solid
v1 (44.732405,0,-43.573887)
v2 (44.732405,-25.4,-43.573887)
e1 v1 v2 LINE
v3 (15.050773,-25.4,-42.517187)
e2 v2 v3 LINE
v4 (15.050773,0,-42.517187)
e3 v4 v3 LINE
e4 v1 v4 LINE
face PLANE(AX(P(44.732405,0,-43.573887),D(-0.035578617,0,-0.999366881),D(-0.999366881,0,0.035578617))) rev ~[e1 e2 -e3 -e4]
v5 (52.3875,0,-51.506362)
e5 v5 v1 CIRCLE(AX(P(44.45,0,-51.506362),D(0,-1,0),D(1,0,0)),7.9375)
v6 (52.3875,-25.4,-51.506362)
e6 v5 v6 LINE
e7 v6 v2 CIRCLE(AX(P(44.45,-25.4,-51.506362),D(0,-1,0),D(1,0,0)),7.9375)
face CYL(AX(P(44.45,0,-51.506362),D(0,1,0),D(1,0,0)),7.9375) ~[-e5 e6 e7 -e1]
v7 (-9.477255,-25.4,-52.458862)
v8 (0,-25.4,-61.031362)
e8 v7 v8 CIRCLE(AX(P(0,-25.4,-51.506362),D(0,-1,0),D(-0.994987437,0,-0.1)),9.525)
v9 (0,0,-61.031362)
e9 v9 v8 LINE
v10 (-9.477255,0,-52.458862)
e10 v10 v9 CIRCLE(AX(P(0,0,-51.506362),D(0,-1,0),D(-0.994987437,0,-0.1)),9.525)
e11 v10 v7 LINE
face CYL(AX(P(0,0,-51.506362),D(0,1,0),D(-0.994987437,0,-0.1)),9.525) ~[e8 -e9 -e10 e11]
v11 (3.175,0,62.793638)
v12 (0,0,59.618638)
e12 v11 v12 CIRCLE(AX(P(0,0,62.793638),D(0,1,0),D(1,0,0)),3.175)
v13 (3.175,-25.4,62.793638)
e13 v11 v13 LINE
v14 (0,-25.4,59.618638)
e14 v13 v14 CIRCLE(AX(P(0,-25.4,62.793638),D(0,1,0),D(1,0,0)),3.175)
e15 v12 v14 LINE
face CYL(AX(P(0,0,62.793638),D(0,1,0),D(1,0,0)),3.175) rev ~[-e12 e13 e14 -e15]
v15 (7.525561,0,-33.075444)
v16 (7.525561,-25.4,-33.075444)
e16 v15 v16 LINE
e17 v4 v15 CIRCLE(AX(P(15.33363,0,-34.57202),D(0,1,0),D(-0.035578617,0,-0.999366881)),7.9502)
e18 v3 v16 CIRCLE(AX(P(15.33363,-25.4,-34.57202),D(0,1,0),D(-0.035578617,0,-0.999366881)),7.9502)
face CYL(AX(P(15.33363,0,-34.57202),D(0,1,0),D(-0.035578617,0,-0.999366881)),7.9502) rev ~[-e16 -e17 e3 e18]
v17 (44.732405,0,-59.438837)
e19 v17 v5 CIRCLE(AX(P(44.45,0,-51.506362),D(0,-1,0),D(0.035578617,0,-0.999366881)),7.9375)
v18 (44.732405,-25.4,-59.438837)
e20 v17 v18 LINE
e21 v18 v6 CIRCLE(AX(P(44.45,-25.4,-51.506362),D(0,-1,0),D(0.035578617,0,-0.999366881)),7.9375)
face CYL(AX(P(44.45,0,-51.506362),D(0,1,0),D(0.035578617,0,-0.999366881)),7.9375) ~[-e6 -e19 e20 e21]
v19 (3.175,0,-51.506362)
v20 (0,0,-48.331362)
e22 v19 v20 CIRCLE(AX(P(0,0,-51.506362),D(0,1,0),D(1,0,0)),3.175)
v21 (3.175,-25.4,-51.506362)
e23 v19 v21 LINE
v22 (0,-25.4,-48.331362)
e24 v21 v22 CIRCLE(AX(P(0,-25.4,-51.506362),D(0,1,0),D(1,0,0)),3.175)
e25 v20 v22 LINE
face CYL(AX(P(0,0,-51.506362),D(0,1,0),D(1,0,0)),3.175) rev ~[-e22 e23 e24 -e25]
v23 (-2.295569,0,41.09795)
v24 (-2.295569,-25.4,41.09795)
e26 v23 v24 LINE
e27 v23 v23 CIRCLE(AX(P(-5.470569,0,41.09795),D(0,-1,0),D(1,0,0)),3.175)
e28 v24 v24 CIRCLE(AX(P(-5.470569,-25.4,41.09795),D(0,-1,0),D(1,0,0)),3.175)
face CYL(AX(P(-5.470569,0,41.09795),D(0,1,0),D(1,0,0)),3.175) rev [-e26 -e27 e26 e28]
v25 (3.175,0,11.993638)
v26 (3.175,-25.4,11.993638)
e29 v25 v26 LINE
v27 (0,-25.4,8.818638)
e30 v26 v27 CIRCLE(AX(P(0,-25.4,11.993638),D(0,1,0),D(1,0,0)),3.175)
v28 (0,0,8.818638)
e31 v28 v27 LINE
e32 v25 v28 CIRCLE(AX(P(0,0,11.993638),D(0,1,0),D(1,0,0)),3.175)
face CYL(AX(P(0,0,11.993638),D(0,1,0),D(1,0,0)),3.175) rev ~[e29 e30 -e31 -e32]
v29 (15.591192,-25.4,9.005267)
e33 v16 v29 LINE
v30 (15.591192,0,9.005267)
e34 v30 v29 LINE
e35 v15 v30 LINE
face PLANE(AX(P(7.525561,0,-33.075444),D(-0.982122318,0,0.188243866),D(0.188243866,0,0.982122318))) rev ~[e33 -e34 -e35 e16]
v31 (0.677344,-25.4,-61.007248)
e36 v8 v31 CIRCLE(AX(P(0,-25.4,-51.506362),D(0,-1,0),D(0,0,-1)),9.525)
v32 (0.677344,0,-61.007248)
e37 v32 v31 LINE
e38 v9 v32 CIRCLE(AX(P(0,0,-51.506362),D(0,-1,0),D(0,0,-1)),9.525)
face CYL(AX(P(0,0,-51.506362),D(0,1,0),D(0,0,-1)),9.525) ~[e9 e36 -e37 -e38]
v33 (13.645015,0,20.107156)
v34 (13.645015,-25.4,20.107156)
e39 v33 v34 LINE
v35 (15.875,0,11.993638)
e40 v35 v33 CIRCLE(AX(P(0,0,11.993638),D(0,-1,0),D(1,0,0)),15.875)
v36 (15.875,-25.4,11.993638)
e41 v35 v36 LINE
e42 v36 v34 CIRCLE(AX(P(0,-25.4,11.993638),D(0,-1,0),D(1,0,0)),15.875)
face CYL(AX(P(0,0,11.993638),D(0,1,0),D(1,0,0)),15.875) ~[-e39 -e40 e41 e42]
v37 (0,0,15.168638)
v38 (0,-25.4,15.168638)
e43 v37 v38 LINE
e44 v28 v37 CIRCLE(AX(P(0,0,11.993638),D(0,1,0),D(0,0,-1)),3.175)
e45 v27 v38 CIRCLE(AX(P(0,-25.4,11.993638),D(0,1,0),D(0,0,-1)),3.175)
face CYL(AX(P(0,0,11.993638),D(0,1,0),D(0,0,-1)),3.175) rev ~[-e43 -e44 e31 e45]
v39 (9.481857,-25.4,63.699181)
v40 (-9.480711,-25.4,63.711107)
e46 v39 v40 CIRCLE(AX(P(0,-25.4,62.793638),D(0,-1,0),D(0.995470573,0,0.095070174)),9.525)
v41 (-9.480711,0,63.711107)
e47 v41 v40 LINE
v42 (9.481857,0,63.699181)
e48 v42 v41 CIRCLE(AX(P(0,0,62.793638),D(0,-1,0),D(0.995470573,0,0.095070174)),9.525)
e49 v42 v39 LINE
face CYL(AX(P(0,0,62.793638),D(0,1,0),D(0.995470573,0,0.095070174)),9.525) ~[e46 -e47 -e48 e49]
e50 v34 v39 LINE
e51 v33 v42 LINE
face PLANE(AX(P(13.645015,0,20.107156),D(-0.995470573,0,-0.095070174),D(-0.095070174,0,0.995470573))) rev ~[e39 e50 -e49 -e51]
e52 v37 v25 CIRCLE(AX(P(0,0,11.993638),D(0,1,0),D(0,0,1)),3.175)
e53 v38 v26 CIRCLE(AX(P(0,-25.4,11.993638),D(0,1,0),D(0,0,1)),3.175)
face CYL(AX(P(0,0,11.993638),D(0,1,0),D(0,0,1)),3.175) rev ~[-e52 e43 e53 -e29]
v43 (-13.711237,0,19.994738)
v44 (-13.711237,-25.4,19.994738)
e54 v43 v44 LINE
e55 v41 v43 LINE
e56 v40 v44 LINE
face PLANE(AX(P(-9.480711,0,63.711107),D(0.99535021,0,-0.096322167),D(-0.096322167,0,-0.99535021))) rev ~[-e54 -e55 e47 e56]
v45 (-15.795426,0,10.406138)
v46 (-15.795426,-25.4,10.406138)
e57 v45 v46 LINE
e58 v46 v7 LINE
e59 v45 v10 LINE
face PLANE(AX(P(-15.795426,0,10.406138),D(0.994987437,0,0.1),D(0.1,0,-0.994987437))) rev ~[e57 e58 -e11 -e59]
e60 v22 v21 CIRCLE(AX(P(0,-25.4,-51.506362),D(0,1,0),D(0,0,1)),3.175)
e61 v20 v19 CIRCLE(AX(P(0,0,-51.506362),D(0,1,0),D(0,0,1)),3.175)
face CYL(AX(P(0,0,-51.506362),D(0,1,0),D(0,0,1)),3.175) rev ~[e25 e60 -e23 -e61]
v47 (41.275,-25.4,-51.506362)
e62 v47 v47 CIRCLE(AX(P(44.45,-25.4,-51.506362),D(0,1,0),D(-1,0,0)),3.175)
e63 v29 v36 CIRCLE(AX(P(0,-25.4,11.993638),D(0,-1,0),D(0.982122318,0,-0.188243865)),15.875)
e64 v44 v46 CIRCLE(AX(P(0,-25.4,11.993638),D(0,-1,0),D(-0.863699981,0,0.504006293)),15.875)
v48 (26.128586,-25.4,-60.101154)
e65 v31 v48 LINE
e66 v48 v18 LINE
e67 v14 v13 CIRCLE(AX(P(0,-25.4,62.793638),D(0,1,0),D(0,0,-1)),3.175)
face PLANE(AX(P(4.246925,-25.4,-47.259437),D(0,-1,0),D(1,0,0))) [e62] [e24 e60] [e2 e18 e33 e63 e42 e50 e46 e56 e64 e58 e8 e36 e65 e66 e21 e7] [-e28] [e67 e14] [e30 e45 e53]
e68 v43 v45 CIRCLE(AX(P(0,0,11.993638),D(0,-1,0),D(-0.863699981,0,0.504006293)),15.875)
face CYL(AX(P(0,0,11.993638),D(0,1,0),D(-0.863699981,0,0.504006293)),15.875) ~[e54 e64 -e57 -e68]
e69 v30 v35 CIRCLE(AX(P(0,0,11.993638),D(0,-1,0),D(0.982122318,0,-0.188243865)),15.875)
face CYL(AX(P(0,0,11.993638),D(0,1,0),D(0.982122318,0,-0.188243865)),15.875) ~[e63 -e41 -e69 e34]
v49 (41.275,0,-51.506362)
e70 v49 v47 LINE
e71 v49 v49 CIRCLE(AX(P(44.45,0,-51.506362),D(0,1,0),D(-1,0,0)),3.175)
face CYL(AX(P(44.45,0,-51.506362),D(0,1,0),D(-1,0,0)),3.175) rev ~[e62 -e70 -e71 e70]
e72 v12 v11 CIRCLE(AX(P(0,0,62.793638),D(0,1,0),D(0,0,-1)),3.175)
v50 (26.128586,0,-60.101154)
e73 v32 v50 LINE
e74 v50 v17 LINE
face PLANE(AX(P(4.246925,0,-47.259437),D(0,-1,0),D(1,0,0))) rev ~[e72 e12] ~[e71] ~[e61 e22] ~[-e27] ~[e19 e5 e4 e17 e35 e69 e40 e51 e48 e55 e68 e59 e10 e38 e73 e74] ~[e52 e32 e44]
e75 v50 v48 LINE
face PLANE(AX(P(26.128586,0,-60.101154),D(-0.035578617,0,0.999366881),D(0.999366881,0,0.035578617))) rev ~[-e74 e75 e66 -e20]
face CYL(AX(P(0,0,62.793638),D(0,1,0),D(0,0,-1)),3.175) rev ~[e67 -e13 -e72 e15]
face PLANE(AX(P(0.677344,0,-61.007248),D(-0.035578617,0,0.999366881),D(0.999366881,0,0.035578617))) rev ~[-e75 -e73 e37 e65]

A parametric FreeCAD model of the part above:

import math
import FreeCAD as App
import Part
import Sketcher
from FreeCAD import Vector
Q = App.Units.Quantity

doc = App.newDocument("Part")
body = doc.addObject("PartDesign::Body", "Body")

# Sketch on XZ plane
sketch1 = body.newObject("Sketcher::SketchObject", "Sketch")
sketch1.AttachmentSupport = (doc.getObject("XZ_Plane"), [""])
sketch1.MapMode = "FlatFace"
sketch1.addGeometry([
    Part.ArcOfCircle(Part.Circle(Vector(0, -51.5, 0), Vector(0, 0, 1), 9.5), math.radians(-90), math.radians(-85.92)),  # 0
    Part.LineSegment(Vector(0.7, -61, 0), Vector(26.1, -60.1, 0)),  # 1
    Part.LineSegment(Vector(26.1, -60.1, 0), Vector(44.7, -59.4, 0)),  # 2
    Part.ArcOfCircle(Part.Circle(Vector(44.5, -51.5, 0), Vector(0, 0, 1), 7.9), math.radians(-88), math.radians(0)),  # 3
    Part.ArcOfCircle(Part.Circle(Vector(44.5, -51.5, 0), Vector(0, 0, 1), 7.9), math.radians(0), math.radians(88)),  # 4
    Part.LineSegment(Vector(44.7, -43.6, 0), Vector(15.1, -42.5, 0)),  # 5
    Part.ArcOfCircle(Part.Circle(Vector(15.3, -34.6, 0), Vector(0, 0, 1), 8), math.radians(169), math.radians(268)),  # 6
    Part.LineSegment(Vector(7.5, -33.1, 0), Vector(15.6, 9, 0)),  # 7
    Part.ArcOfCircle(Part.Circle(Vector(0, 12, 0), Vector(0, 0, 1), 15.9), math.radians(-10.85), math.radians(0)),  # 8
    Part.ArcOfCircle(Part.Circle(Vector(0, 12, 0), Vector(0, 0, 1), 15.9), math.radians(0), math.radians(31)),  # 9
    Part.LineSegment(Vector(13.6, 20.1, 0), Vector(9.5, 63.7, 0)),  # 10
    Part.ArcOfCircle(Part.Circle(Vector(0, 62.8, 0), Vector(0, 0, 1), 9.5), math.radians(5), math.radians(174)),  # 11
    Part.LineSegment(Vector(-9.5, 63.7, 0), Vector(-13.7, 20, 0)),  # 12
    Part.ArcOfCircle(Part.Circle(Vector(0, 12, 0), Vector(0, 0, 1), 15.9), math.radians(150), math.radians(186)),  # 13
    Part.LineSegment(Vector(-15.8, 10.4, 0), Vector(-9.5, -52.5, 0)),  # 14
    Part.ArcOfCircle(Part.Circle(Vector(0, -51.5, 0), Vector(0, 0, 1), 9.5), math.radians(-174), math.radians(-90)),  # 15
    Part.ArcOfCircle(Part.Circle(Vector(0, -51.5, 0), Vector(0, 0, 1), 9.5), math.radians(0), math.radians(90)),  # 16
    Part.LineSegment(Vector(9.5, -51.5, 0), Vector(3.2, -51.5, 0)),  # 17
    Part.ArcOfCircle(Part.Circle(Vector(0, -51.5, 0), Vector(0, 0, 1), 3.2), math.radians(90), math.radians(360)),  # 18
    Part.LineSegment(Vector(0, -48.3, 0), Vector(0, -42, 0)),  # 19
    Part.Circle(Vector(44.5, -51.5, 0), Vector(0, 0, 1), 3.2),  # 20
    Part.ArcOfCircle(Part.Circle(Vector(0, 12, 0), Vector(0, 0, 1), 3.2), math.radians(0), math.radians(90)),  # 21
    Part.ArcOfCircle(Part.Circle(Vector(0, 12, 0), Vector(0, 0, 1), 3.2), math.radians(-90), math.radians(0)),  # 22
    Part.ArcOfCircle(Part.Circle(Vector(0, 12, 0), Vector(0, 0, 1), 3.2), math.radians(90), math.radians(270)),  # 23
    Part.Circle(Vector(-5.5, 41.1, 0), Vector(0, 0, 1), 3.2),  # 24
    Part.ArcOfCircle(Part.Circle(Vector(0, 62.8, 0), Vector(0, 0, 1), 3.2), math.radians(0), math.radians(270)),  # 25
    Part.ArcOfCircle(Part.Circle(Vector(0, 62.8, 0), Vector(0, 0, 1), 3.2), math.radians(-90), math.radians(0)),  # 26
], False)
sketch1.addConstraint([
    Sketcher.Constraint("Coincident", 0, 2, 1, 1),
    Sketcher.Constraint("Coincident", 1, 2, 2, 1),
    Sketcher.Constraint("Tangent", 2, 2, 3, 1),
    Sketcher.Constraint("Tangent", 3, 2, 4, 1),
    Sketcher.Constraint("Tangent", 4, 2, 5, 1),
    Sketcher.Constraint("Tangent", 5, 2, 6, 2),
    Sketcher.Constraint("Tangent", 6, 1, 7, 1),
    Sketcher.Constraint("Tangent", 7, 2, 8, 1),
    Sketcher.Constraint("Tangent", 8, 2, 9, 1),
    Sketcher.Constraint("Coincident", 9, 2, 10, 1),
    Sketcher.Constraint("Tangent", 10, 2, 11, 1),
    Sketcher.Constraint("Tangent", 11, 2, 12, 1),
    Sketcher.Constraint("Coincident", 12, 2, 13, 1),
    Sketcher.Constraint("Tangent", 13, 2, 14, 1),
    Sketcher.Constraint("Tangent", 14, 2, 15, 1),
    Sketcher.Constraint("Tangent", 15, 2, 0, 1),
    Sketcher.Constraint("Coincident", 16, 1, 17, 1),
    Sketcher.Constraint("Coincident", 17, 2, 18, 2),
    Sketcher.Constraint("Coincident", 18, 1, 19, 1),
    Sketcher.Constraint("Coincident", 19, 2, 16, 2),
    Sketcher.Constraint("Tangent", 21, 1, 22, 2),
    Sketcher.Constraint("Tangent", 22, 1, 23, 2),
    Sketcher.Constraint("Tangent", 23, 1, 21, 2),
    Sketcher.Constraint("Tangent", 25, 1, 26, 2),
    Sketcher.Constraint("Coincident", 26, 1, 25, 2),
    Sketcher.Constraint("Horizontal", 17),
    Sketcher.Constraint("Vertical", 19),
    Sketcher.Constraint("Coincident", 13, 3, 8, 3),
    Sketcher.Constraint("Coincident", 16, 3, 0, 3),
    Sketcher.Constraint("Coincident", 18, 3, 0, 3),
    Sketcher.Constraint("Coincident", 20, 3, 3, 3),
    Sketcher.Constraint("Coincident", 21, 3, 8, 3),
    Sketcher.Constraint("Coincident", 25, 3, 11, 3),
    Sketcher.Constraint("Equal", 3, 4),
    Sketcher.Constraint("Equal", 8, 9),
    Sketcher.Constraint("Equal", 0, 11),
    Sketcher.Constraint("Equal", 9, 13),
    Sketcher.Constraint("Equal", 11, 15),
    Sketcher.Constraint("Equal", 15, 16),
    Sketcher.Constraint("Equal", 18, 20),
    Sketcher.Constraint("Equal", 20, 21),
    Sketcher.Constraint("Equal", 23, 24),
    Sketcher.Constraint("Equal", 24, 25),
    Sketcher.Constraint("PointOnObject", 0, 3, -2),
    Sketcher.Constraint("PointOnObject", 8, 3, -2),
    Sketcher.Constraint("PointOnObject", 11, 3, -2),
    Sketcher.Constraint("PointOnObject", 15, 2, -2),
    Sketcher.Constraint("PointOnObject", 18, 1, -2),
    Sketcher.Constraint("PointOnObject", 22, 1, -2),
    Sketcher.Constraint("PointOnObject", 23, 1, -2),
    Sketcher.Constraint("PointOnObject", 26, 1, -2),
    Sketcher.Constraint("Parallel", 1, 2),
    Sketcher.Constraint("Horizontal", 0, 3, 3, 3),
    Sketcher.Constraint("Horizontal", 20, 3, 3, 2),
    Sketcher.Constraint("Horizontal", 23, 3, 8, 2),
    Sketcher.Constraint("Horizontal", 3, 2, 16, 1),
    Sketcher.Constraint("Horizontal", 8, 2, 21, 1),
    Sketcher.Constraint("Horizontal", 26, 3, 25, 1),
    Sketcher.Constraint("Vertical", 2, 2, 4, 2),
    Sketcher.Constraint("Diameter", 20, Q("0.25 in")),
    Sketcher.Constraint("Radius", 0, Q("0.375 in")),
    Sketcher.Constraint("Radius", 3, Q("0.3125 in")),
    Sketcher.Constraint("Radius", 6, Q("0.313 in")),
    Sketcher.Constraint("Radius", 8, Q("0.625 in")),
    Sketcher.Constraint("DistanceY", 8, 3, 11, 3, Q("2 in")),
    Sketcher.Constraint("DistanceY", 0, 3, 8, 3, Q("2.5 in")),
    Sketcher.Constraint("DistanceX", -1, 1, 3, 3, Q("1.75 in")),
    Sketcher.Constraint("DistanceY", 8, 3, 12, 2, 8.0011),
    Sketcher.Constraint("DistanceX", 14, 2, 0, 2, 10.154599),
    Sketcher.Constraint("Distance", 7, 42.84671),
    Sketcher.Constraint("Distance", 10, 43.79037),
    Sketcher.Constraint("DistanceY", 6, 3, -1, 1, 34.57202),
    Sketcher.Constraint("DistanceX", 24, 3, -1, 1, 5.470569),
    Sketcher.Constraint("DistanceY", -1, 1, 24, 3, 41.09795),
    Sketcher.Constraint("DistanceX", 1, 2, 2, 2, 18.603819),
])
pad1 = body.newObject("PartDesign::Pad", "Pad")
pad1.Profile = sketch1
pad1.Length = Q("1 in")

# Sketch on XZ plane
sketch2 = body.newObject("Sketcher::SketchObject", "Sketch001")
sketch2.AttachmentSupport = (doc.getObject("XZ_Plane"), [""])
sketch2.MapMode = "FlatFace"
sketch2.addGeometry([
    Part.ArcOfCircle(Part.Circle(Vector(0, -51.5, 0), Vector(0, 0, 1), 9.5), math.radians(0), math.radians(90)),
    Part.LineSegment(Vector(0, -42, 0), Vector(0, -48.3, 0)),
    Part.ArcOfCircle(Part.Circle(Vector(0, -51.5, 0), Vector(0, 0, 1), 3.2), math.radians(0), math.radians(90)),
    Part.LineSegment(Vector(3.2, -51.5, 0), Vector(9.5, -51.5, 0)),
], False)
sketch2.addConstraint([
    Sketcher.Constraint("Coincident", 0, 2, 1, 1),
    Sketcher.Constraint("Coincident", 1, 2, 2, 2),
    Sketcher.Constraint("Coincident", 2, 1, 3, 1),
    Sketcher.Constraint("Coincident", 3, 2, 0, 1),
    Sketcher.Constraint("Vertical", 1),
    Sketcher.Constraint("Horizontal", 3),
    Sketcher.Constraint("Coincident", 2, 3, 0, 3),
    Sketcher.Constraint("PointOnObject", 0, 3, -2),
    Sketcher.Constraint("PointOnObject", 0, 2, -2),
    Sketcher.Constraint("Horizontal", 0, 3, 2, 1),
    Sketcher.Constraint("Radius", 0, Q("0.375 in")),
    Sketcher.Constraint("Radius", 2, Q("0.125 in")),
    Sketcher.Constraint("DistanceY", 0, 3, -1, 1, 51.506362),
])
pad2 = body.newObject("PartDesign::Pad", "Pad001")
pad2.Profile = sketch2
pad2.Length = Q("1 in")

doc.recompute()
